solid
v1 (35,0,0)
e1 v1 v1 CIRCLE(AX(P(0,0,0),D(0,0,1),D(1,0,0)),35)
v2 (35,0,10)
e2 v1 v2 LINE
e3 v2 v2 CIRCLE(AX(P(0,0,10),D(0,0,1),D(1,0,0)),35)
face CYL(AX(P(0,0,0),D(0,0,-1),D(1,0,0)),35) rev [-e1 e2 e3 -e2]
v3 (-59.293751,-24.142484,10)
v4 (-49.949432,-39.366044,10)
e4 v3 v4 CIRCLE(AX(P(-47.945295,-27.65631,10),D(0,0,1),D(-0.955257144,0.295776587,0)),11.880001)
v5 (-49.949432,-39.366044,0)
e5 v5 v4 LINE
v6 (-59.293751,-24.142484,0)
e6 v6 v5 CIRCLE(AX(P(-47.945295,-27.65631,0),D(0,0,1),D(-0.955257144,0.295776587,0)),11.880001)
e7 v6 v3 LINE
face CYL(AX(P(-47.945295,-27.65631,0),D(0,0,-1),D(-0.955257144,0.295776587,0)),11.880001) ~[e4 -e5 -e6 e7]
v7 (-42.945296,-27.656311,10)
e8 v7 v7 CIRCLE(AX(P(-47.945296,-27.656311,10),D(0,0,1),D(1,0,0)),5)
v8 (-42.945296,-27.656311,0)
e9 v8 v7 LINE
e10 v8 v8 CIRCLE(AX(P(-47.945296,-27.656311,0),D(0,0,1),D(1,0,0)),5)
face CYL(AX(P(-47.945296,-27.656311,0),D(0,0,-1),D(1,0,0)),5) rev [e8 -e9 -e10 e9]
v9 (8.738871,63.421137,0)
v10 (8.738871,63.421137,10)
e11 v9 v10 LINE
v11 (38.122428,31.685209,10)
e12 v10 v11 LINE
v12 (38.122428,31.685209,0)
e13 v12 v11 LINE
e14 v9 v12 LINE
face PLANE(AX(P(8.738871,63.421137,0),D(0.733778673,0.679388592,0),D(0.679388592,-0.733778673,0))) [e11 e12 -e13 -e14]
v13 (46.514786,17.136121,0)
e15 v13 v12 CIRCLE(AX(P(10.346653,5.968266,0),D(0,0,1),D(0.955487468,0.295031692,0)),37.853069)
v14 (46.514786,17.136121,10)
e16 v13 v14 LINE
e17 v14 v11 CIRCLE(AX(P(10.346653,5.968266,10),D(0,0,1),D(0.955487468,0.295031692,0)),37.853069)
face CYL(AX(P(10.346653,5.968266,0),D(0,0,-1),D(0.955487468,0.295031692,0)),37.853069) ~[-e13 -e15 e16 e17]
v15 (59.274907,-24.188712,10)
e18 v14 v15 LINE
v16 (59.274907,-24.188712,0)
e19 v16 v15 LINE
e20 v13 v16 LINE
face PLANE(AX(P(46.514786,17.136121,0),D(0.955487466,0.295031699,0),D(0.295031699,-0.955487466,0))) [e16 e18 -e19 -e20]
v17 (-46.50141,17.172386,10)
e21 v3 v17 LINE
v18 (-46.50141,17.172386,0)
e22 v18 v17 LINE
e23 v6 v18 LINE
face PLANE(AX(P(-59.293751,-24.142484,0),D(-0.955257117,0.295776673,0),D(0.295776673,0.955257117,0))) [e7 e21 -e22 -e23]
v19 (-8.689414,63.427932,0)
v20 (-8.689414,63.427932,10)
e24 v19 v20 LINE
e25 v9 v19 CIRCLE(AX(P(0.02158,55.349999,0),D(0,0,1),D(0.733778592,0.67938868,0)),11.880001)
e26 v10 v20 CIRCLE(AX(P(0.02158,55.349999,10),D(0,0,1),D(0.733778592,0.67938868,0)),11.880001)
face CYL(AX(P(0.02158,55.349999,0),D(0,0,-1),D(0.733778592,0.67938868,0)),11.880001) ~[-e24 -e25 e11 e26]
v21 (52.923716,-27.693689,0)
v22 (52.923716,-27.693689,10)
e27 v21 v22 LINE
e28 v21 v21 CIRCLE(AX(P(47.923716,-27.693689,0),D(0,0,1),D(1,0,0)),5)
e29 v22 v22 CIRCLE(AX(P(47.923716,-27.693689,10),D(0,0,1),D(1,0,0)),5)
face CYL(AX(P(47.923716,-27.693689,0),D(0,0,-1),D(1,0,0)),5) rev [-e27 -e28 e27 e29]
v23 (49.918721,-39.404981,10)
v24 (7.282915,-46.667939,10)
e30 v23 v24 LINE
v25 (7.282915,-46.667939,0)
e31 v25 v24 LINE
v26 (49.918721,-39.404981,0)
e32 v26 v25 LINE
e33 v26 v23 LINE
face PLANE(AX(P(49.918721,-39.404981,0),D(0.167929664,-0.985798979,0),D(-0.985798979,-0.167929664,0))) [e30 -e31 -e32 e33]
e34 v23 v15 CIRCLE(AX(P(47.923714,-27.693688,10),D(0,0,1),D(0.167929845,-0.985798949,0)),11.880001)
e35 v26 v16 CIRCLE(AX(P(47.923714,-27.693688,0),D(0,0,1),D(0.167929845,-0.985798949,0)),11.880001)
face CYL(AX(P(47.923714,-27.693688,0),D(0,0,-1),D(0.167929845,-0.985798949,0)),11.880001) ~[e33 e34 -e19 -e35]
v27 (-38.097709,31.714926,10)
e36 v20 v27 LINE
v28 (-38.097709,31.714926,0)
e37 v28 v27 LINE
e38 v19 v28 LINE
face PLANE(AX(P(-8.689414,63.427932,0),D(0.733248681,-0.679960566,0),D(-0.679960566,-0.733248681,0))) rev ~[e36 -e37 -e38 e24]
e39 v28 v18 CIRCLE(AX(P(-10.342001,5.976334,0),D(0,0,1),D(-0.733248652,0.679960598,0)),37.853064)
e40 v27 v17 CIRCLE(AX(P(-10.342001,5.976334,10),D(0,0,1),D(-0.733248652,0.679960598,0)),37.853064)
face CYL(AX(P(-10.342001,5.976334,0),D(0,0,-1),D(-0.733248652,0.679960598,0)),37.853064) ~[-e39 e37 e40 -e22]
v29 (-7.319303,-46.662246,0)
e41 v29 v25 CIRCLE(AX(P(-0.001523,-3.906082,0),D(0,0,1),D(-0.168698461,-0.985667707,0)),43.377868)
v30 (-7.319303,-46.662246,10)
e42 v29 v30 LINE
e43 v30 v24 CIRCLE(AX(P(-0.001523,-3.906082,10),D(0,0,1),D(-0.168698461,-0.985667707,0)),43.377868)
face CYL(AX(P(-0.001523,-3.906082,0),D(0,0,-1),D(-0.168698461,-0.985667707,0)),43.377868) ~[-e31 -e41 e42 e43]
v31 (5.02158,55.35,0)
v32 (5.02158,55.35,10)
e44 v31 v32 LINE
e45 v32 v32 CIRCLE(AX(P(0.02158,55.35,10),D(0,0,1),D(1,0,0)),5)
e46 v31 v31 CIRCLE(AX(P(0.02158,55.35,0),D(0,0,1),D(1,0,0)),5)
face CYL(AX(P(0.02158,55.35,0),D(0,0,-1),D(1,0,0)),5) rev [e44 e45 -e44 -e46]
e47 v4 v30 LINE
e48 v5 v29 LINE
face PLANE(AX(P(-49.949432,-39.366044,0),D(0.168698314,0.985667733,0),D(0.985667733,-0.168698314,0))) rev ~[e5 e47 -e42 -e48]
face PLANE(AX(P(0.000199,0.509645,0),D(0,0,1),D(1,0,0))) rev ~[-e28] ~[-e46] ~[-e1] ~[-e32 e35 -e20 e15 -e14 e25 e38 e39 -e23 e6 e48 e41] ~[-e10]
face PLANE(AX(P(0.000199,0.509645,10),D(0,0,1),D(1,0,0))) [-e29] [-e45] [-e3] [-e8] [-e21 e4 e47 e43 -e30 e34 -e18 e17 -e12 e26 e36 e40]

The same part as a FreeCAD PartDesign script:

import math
import FreeCAD as App
import Part
import Sketcher

V = App.Vector

doc = App.newDocument("Part")
body = doc.addObject("PartDesign::Body", "Body")

sketch1 = doc.addObject("Sketcher::SketchObject", "Sketch")
body.addObject(sketch1)
sketch1.AttachmentSupport = (doc.XY_Plane, [""])
sketch1.MapMode = "FlatFace"
sketch1.addGeometry(Part.ArcOfCircle(Part.Circle(V(0, 55, 0), V(0, 0, 1), 12), math.radians(43), math.radians(137)), False)
sketch1.addGeometry(Part.LineSegment(V(-9, 63, 0), V(-38, 32, 0)), False)
sketch1.addGeometry(Part.ArcOfCircle(Part.Circle(V(-10, 6, 0), V(0, 0, 1), 38), math.radians(137), math.radians(163)), False)
sketch1.addGeometry(Part.LineSegment(V(-47, 17, 0), V(-59, -24, 0)), False)
sketch1.addGeometry(Part.ArcOfCircle(Part.Circle(V(-48, -28, 0), V(0, 0, 1), 12), math.radians(163), math.radians(260)), False)
sketch1.addGeometry(Part.LineSegment(V(-50, -39, 0), V(-7, -47, 0)), False)
sketch1.addGeometry(Part.ArcOfCircle(Part.Circle(V(0, -4, 0), V(0, 0, 1), 43), math.radians(-99.71), math.radians(-80.33)), False)
sketch1.addGeometry(Part.LineSegment(V(7, -47, 0), V(50, -39, 0)), False)
sketch1.addGeometry(Part.ArcOfCircle(Part.Circle(V(48, -28, 0), V(0, 0, 1), 12), math.radians(-80), math.radians(17)), False)
sketch1.addGeometry(Part.LineSegment(V(59, -24, 0), V(47, 17, 0)), False)
sketch1.addGeometry(Part.ArcOfCircle(Part.Circle(V(10, 6, 0), V(0, 0, 1), 38), math.radians(17), math.radians(43)), False)
sketch1.addGeometry(Part.LineSegment(V(38, 32, 0), V(9, 63, 0)), False)
sketch1.addGeometry(Part.Circle(V(-48, -28, 0), V(0, 0, 1), 5), False)
sketch1.addGeometry(Part.Circle(V(48, -28, 0), V(0, 0, 1), 5), False)
sketch1.addGeometry(Part.Circle(V(0, 0, 0), V(0, 0, 1), 35), False)
sketch1.addGeometry(Part.Circle(V(0, 55, 0), V(0, 0, 1), 5), False)
sketch1.addConstraint(Sketcher.Constraint("Tangent", 0, 2, 1, 1))
sketch1.addConstraint(Sketcher.Constraint("Tangent", 1, 2, 2, 1))
sketch1.addConstraint(Sketcher.Constraint("Tangent", 2, 2, 3, 1))
sketch1.addConstraint(Sketcher.Constraint("Tangent", 3, 2, 4, 1))
sketch1.addConstraint(Sketcher.Constraint("Tangent", 4, 2, 5, 1))
sketch1.addConstraint(Sketcher.Constraint("Tangent", 5, 2, 6, 1))
sketch1.addConstraint(Sketcher.Constraint("Tangent", 6, 2, 7, 1))
sketch1.addConstraint(Sketcher.Constraint("Tangent", 7, 2, 8, 1))
sketch1.addConstraint(Sketcher.Constraint("Tangent", 8, 2, 9, 1))
sketch1.addConstraint(Sketcher.Constraint("Tangent", 9, 2, 10, 1))
sketch1.addConstraint(Sketcher.Constraint("Tangent", 10, 2, 11, 1))
sketch1.addConstraint(Sketcher.Constraint("Tangent", 11, 2, 0, 1))
sketch1.addConstraint(Sketcher.Constraint("Coincident", 14, 3, -1, 1))
sketch1.addConstraint(Sketcher.Constraint("Coincident", 12, 3, 4, 3))
sketch1.addConstraint(Sketcher.Constraint("Coincident", 13, 3, 8, 3))
sketch1.addConstraint(Sketcher.Constraint("Coincident", 15, 3, 0, 3))
sketch1.addConstraint(Sketcher.Constraint("Equal", 0, 4))
sketch1.addConstraint(Sketcher.Constraint("Equal", 4, 8))
sketch1.addConstraint(Sketcher.Constraint("Equal", 12, 13))
sketch1.addConstraint(Sketcher.Constraint("Equal", 13, 15))
sketch1.addConstraint(Sketcher.Constraint("Equal", 1, 3))
sketch1.addConstraint(Sketcher.Constraint("Equal", 3, 5))
sketch1.addConstraint(Sketcher.Constraint("Equal", 5, 7))
sketch1.addConstraint(Sketcher.Constraint("Equal", 7, 9))
sketch1.addConstraint(Sketcher.Constraint("Equal", 9, 11))
sketch1.addConstraint(Sketcher.Constraint("Diameter", 12, 10.0))
sketch1.addConstraint(Sketcher.Constraint("Diameter", 14, 70.0))
sketch1.addConstraint(Sketcher.Constraint("Radius", 0, 11.880001))
sketch1.addConstraint(Sketcher.Constraint("Distance", 1, 43.250001))
sketch1.addConstraint(Sketcher.Constraint("DistanceY", -1, 1, 0, 3, 55.349999))
sketch1.addConstraint(Sketcher.Constraint("Radius", 10, 37.853069))
sketch1.addConstraint(Sketcher.Constraint("DistanceX", 2, 3, -1, 1, 10.342001))
sketch1.addConstraint(Sketcher.Constraint("Radius", 2, 37.853064))
sketch1.addConstraint(Sketcher.Constraint("Radius", 6, 43.377868))
sketch1.addConstraint(Sketcher.Constraint("DistanceX", 2, 2, 1, 2, 8.403701))
sketch1.addConstraint(Sketcher.Constraint("DistanceY", 5, 2, 4, 2, 7.296202))
sketch1.addConstraint(Sketcher.Constraint("DistanceX", 6, 2, 8, 3, 40.640799))
sketch1.addConstraint(Sketcher.Constraint("DistanceX", -1, 1, 0, 3, 0.02158))
pad1 = doc.addObject("PartDesign::Pad", "Pad")
body.addObject(pad1)
pad1.Profile = sketch1
pad1.Length = 10

doc.recompute()
